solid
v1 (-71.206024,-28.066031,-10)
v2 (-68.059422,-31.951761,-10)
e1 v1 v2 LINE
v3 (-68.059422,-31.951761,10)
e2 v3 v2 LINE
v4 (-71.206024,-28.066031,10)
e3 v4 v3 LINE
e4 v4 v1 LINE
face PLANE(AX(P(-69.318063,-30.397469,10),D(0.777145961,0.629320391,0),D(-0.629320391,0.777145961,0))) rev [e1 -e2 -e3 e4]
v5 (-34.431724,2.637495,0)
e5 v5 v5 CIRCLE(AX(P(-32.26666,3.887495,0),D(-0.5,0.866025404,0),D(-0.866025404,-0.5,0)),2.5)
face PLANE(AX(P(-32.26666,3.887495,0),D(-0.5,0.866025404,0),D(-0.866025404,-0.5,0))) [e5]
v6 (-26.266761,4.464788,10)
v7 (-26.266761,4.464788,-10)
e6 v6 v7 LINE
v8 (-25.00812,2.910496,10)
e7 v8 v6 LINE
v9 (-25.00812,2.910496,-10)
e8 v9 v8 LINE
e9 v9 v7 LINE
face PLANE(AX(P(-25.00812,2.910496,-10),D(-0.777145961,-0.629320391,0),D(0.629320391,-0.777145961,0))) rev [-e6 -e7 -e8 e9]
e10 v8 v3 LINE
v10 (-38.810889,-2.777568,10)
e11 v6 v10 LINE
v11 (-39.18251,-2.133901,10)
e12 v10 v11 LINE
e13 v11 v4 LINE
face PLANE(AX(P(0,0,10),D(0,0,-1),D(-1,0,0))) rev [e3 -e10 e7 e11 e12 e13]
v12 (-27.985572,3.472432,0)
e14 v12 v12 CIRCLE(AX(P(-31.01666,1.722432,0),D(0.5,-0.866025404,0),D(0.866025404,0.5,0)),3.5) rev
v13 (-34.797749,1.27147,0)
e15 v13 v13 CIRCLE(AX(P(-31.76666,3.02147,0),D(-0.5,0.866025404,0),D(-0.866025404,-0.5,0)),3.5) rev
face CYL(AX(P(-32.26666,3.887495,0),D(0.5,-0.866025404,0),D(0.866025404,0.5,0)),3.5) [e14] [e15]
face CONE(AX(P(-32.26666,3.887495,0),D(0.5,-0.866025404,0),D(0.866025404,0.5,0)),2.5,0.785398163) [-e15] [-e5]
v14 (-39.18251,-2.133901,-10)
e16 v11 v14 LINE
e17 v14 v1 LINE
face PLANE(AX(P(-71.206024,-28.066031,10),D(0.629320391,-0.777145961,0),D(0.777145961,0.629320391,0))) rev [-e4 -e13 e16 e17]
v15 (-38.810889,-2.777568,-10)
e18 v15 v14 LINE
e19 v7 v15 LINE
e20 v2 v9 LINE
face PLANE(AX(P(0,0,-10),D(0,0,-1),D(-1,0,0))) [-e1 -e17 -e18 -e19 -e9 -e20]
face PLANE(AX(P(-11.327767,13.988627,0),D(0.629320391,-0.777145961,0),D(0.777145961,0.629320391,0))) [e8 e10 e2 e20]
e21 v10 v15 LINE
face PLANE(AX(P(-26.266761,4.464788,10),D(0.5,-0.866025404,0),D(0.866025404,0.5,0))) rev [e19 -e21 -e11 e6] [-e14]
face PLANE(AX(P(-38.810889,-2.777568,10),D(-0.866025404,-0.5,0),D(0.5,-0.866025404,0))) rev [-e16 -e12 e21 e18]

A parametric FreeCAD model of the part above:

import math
import FreeCAD as App
import Part
import Sketcher
Q = App.Units.Quantity


def edges_at(feature, points):
    """Names of the edges that pass closest to the given points."""
    edges = feature.Shape.Edges
    near = lambda p: min(range(len(edges)), key=lambda i: edges[i].distToShape(Part.Vertex(*p))[0])
    return sorted({f"Edge{near(p) + 1}" for p in points})


def add_polygon(sketch, points):
    """Adds a closed chain of lines whose ends are joined by coincident constraints."""
    first, n = sketch.GeometryCount, len(points)
    for a, b in zip(points, points[1:] + points[:1]):
        sketch.addGeometry(Part.LineSegment(App.Vector(*a, 0), App.Vector(*b, 0)), False)
    for i in range(n):
        sketch.addConstraint(Sketcher.Constraint("Coincident", first + i, 2, first + (i + 1) % n, 1))

doc = App.newDocument("Part")
body = doc.addObject("PartDesign::Body", "Body")

# Sketch on XY plane
sketch1 = doc.addObject("Sketcher::SketchObject", "Sketch")
body.addObject(sketch1)
sketch1.AttachmentSupport = (doc.XY_Plane, [""])
sketch1.MapMode = "FlatFace"
sketch1.addGeometry([
    Part.LineSegment(App.Vector(-38.8, -2.8, 0), App.Vector(-8.5, 14.7, 0)),  # 0
    Part.ArcOfCircle(Part.Circle(App.Vector(0, 0, 0), App.Vector(0, 0, 1), 17), math.radians(70), math.radians(120)),  # 1
    Part.LineSegment(App.Vector(5.8, 16, 0), App.Vector(6.5, 17.9, 0)),  # 2
    Part.ArcOfCircle(Part.Circle(App.Vector(0, 0, 0), App.Vector(0, 0, 1), 19), math.radians(70), math.radians(120)),  # 3
    Part.LineSegment(App.Vector(-9.5, 16.5, 0), App.Vector(-39.8, -1, 0)),  # 4
    Part.LineSegment(App.Vector(-39.8, -1, 0), App.Vector(-38.8, -2.8, 0)),  # 5
], False)
sketch1.addConstraint([
    Sketcher.Constraint("Tangent", 0, 2, 1, 2),
    Sketcher.Constraint("Coincident", 1, 1, 2, 1),
    Sketcher.Constraint("Coincident", 2, 2, 3, 1),
    Sketcher.Constraint("Tangent", 3, 2, 4, 1),
    Sketcher.Constraint("Coincident", 4, 2, 5, 1),
    Sketcher.Constraint("Coincident", 5, 2, 0, 1),
    Sketcher.Constraint("Coincident", 1, 3, -1, 1),
    Sketcher.Constraint("Coincident", 3, 3, -1, 1),
    Sketcher.Constraint("Parallel", 0, 4),
    Sketcher.Constraint("Perpendicular", 4, 5),
    Sketcher.Constraint("Radius", 1, 17.0),
    Sketcher.Constraint("Radius", 3, 19.0),
    Sketcher.Constraint("Angle", 0, Q("30 deg")),
    Sketcher.Constraint("Angle", 2, Q("70 deg")),
    Sketcher.Constraint("Distance", 0, 35.0),
    Sketcher.Constraint("DistanceY", -1, 1, 2, 2, 17.85416),
])
pad1 = doc.addObject("PartDesign::Pad", "Pad")
body.addObject(pad1)
pad1.Profile = sketch1
pad1.Length = 18
pad1.Midplane = True

# Sketch on an angled plane
sketch2 = doc.addObject("Sketcher::SketchObject", "Sketch001")
body.addObject(sketch2)
sketch2.Placement = App.Placement(App.Vector(-9.5, 16.454483, 0), App.Rotation(App.Vector(0.866025404, 0.5, 0), App.Vector(0, 0, -1), App.Vector(-0.5, 0.866025404, 0), "ZXY"))
sketch2.addGeometry(Part.Circle(App.Vector(-26, 0, 0), App.Vector(0, 0, 1), 3.5), False)
sketch2.addConstraint([
    Sketcher.Constraint("PointOnObject", 0, 3, -1),
    Sketcher.Constraint("Diameter", 0, 7.0),
    Sketcher.Constraint("DistanceX", 0, 3, -1, 1, 26.0),
])
pocket1 = doc.addObject("PartDesign::Pocket", "Pocket")
body.addObject(pocket1)
pocket1.Profile = sketch2
pocket1.Length = 18

# Sketch on XY plane
sketch3 = doc.addObject("Sketcher::SketchObject", "Sketch002")
body.addObject(sketch3)
sketch3.AttachmentSupport = (doc.XY_Plane, [""])
sketch3.MapMode = "FlatFace"
add_polygon(sketch3, [(-55, 56), (-55, -26), (8, -26), (8, 56)])  # lines 0-3
sketch3.addConstraint([
    Sketcher.Constraint("Vertical", 0),
    Sketcher.Constraint("Horizontal", 1),
    Sketcher.Constraint("Vertical", 2),
    Sketcher.Constraint("Horizontal", 3),
    Sketcher.Constraint("DistanceX", 1, 1, 1, 2, 63.046602),
    Sketcher.Constraint("DistanceY", 0, 2, 0, 1, 81.446188),
    Sketcher.Constraint("DistanceX", -1, 1, 1, 2, 7.633708),
    Sketcher.Constraint("DistanceY", -1, 1, 2, 2, 55.622781),
])
pocket2 = doc.addObject("PartDesign::Pocket", "Pocket001")
body.addObject(pocket2)
pocket2.Profile = sketch3
pocket2.Length = 20
pocket2.Midplane = True
body2 = doc.addObject("PartDesign::Body", "Body001")

# Sketch on XY plane
sketch4 = doc.addObject("Sketcher::SketchObject", "Sketch003")
body2.addObject(sketch4)
sketch4.AttachmentSupport = (doc.getObject("XY_Plane001"), [""])
sketch4.MapMode = "FlatFace"
add_polygon(sketch4, [(-69.3, -30.4), (-26.3, 4.5), (-42.9, -5.1), (-71.2, -28.1)])  # lines 0-3
sketch4.addConstraint([
    Sketcher.Constraint("Parallel", 0, 2),
    Sketcher.Constraint("Perpendicular", 2, 3),
    Sketcher.Constraint("Angle", 0, Q("39 deg")),
    Sketcher.Constraint("Angle", 1, Q("-150 deg")),
    Sketcher.Constraint("Distance", 3, 3.0),
    Sketcher.Constraint("DistanceX", 3, 2, 0, 2, 43.051302),
    Sketcher.Constraint("DistanceX", 0, 2, -1, 1, 26.266761),
    Sketcher.Constraint("DistanceY", 2, 2, -1, 1, 28.066031),
])
pad2 = doc.addObject("PartDesign::Pad", "Pad001")
body2.addObject(pad2)
pad2.Profile = sketch4
pad2.Length = 20
pad2.Midplane = True

# Sketch on an angled plane
sketch5 = doc.addObject("Sketcher::SketchObject", "Sketch004")
body2.addObject(sketch5)
sketch5.Placement = App.Placement(App.Vector(-9.75, 16.887495, 0), App.Rotation(App.Vector(0.866025404, 0.5, 0), App.Vector(0, 0, -1), App.Vector(-0.5, 0.866025404, 0), "ZXY"))
sketch5.addGeometry(Part.Circle(App.Vector(-26, 0, 0), App.Vector(0, 0, 1), 3.5), False)
sketch5.addConstraint([
    Sketcher.Constraint("PointOnObject", 0, 3, -1),
    Sketcher.Constraint("Diameter", 0, 7.0),
    Sketcher.Constraint("DistanceX", 0, 3, -1, 1, 26.0),
])
pad3 = doc.addObject("PartDesign::Pad", "Pad002")
body2.addObject(pad3)
pad3.Profile = sketch5
pad3.Length = 2.5
pad3.Reversed = True
doc.recompute()

chamfer = doc.addObject("PartDesign::Chamfer", "Chamfer")
body2.addObject(chamfer)
chamfer.Base = (pad3, edges_at(pad3, [(-35.298, 2.137, 0)]))
chamfer.Size = 1

# Sketch on XY plane
sketch6 = doc.addObject("Sketcher::SketchObject", "Sketch005")
body2.addObject(sketch6)
sketch6.AttachmentSupport = (doc.getObject("XY_Plane001"), [""])
sketch6.MapMode = "FlatFace"
add_polygon(sketch6, [(-38.8, -2.8), (-39.2, -2.1), (-42.9, -5.1)])  # lines 0-2
sketch6.addConstraint([
    Sketcher.Constraint("Perpendicular", 0, 2),
    Sketcher.Constraint("Angle", 0, Q("120 deg")),
    Sketcher.Constraint("Angle", 1, Q("-141 deg")),
    Sketcher.Constraint("DistanceY", 0, 2, -1, 1, 2.133901),
    Sketcher.Constraint("Distance", 2, 4.692648),
    Sketcher.Constraint("DistanceX", 0, 2, -1, 1, 39.18251),
])
pad4 = doc.addObject("PartDesign::Pad", "Pad003")
body2.addObject(pad4)
pad4.Profile = sketch6
pad4.Length = 20
pad4.Midplane = True

# Sketch on an angled plane
sketch7 = doc.addObject("Sketcher::SketchObject", "Sketch006")
body2.addObject(sketch7)
sketch7.Placement = App.Placement(App.Vector(-12.586408, 15.542919, 0), App.Rotation(App.Vector(0.777145961, 0.629320391, 0), App.Vector(0, 0, 0.999999999), App.Vector(0.629320391, -0.777145961, 0), "ZXY"))
add_polygon(sketch7, [(-73, 10), (-73, -10), (-18, -10), (-18, 10)])  # lines 0-3
sketch7.addConstraint([
    Sketcher.Constraint("Vertical", 0),
    Sketcher.Constraint("Horizontal", 1),
    Sketcher.Constraint("Vertical", 2),
    Sketcher.Constraint("Horizontal", 3),
    Sketcher.Constraint("DistanceY", 0, 2, 0, 1, 20.0),
    Sketcher.Constraint("DistanceX", 0, 2, -1, 1, 73.0),
    Sketcher.Constraint("DistanceY", 0, 2, -1, 1, 10.0),
    Sketcher.Constraint("DistanceX", 1, 1, 1, 2, 55.396674),
])
pad5 = doc.addObject("PartDesign::Pad", "Pad004")
body2.addObject(pad5)
pad5.Profile = sketch7
pad5.Length = 2

doc.recompute()
